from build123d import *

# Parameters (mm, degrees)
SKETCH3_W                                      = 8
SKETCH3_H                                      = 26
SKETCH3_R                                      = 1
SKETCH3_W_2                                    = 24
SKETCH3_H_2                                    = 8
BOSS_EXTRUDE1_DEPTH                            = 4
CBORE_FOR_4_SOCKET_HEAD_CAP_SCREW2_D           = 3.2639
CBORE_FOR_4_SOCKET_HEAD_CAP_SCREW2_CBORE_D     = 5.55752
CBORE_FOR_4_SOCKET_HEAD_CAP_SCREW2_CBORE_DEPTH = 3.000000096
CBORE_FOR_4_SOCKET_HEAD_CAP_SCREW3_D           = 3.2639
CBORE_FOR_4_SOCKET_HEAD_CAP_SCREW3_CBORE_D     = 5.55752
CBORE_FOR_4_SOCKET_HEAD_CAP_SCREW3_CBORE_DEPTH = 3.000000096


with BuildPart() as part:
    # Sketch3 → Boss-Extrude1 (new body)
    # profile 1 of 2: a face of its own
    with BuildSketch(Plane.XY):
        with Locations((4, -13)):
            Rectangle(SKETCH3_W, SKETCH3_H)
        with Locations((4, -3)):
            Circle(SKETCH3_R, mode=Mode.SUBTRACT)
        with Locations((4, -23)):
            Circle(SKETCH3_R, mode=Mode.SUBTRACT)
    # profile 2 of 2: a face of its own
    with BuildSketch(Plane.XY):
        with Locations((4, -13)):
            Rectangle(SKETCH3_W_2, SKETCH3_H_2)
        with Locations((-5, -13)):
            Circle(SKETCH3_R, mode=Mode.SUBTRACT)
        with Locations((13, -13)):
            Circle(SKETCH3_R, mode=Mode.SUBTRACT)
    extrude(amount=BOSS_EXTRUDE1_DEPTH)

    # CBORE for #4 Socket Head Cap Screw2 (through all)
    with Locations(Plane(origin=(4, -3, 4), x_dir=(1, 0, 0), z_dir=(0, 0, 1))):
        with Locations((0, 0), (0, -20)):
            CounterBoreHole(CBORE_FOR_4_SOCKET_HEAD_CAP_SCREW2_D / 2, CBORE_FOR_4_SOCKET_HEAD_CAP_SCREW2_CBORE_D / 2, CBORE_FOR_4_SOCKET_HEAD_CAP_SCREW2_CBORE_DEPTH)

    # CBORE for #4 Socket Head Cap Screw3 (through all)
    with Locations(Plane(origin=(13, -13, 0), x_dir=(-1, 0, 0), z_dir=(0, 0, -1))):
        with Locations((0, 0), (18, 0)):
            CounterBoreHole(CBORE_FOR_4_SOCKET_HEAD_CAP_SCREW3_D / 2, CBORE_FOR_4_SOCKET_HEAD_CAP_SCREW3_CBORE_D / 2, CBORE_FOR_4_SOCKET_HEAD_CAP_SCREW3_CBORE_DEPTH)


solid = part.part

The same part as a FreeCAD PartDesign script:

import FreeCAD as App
import Part
import Sketcher

V = App.Vector
Q = App.Units.Quantity


def add_polygon(sketch, points):
    """Adds a closed chain of lines whose ends are joined by coincident constraints."""
    first, n = sketch.GeometryCount, len(points)
    for a, b in zip(points, points[1:] + points[:1]):
        sketch.addGeometry(Part.LineSegment(App.Vector(*a, 0), App.Vector(*b, 0)), False)
    for i in range(n):
        sketch.addConstraint(Sketcher.Constraint("Coincident", first + i, 2, first + (i + 1) % n, 1))

doc = App.newDocument("Part")
params = doc.addObject("Spreadsheet::Sheet", "Params")
for row, (alias, value) in enumerate([
    ("sketch1_diameter", "2 mm"),
    ("sketch1_width", "8 mm"),
    ("sketch1_height", "9 mm"),
    ("pad1_length", "4 mm"),
    ("hole_diameter", "3.2639 mm"),
    ("hole_cbore_diameter", "5.55752 mm"),
    ("hole_cbore_depth", "3 mm"),
    ("hole2_diameter", "3.2639 mm"),
    ("hole2_cbore_diameter", "5.55752 mm"),
    ("hole2_cbore_depth", "3 mm"),
], start=1):
    params.set(f"A{row}", alias)
    params.set(f"B{row}", "=" + value)
    params.setAlias(f"B{row}", alias)

body = doc.addObject("PartDesign::Body", "Body")

# Sketch on XY plane
sketch1 = doc.addObject("Sketcher::SketchObject", "Sketch")
body.addObject(sketch1)
sketch1.AttachmentSupport = (doc.XY_Plane, [""])
sketch1.MapMode = "FlatFace"
add_polygon(sketch1, [(0, -17), (0, -26), (8, -26), (8, -17), (16, -17), (16, -9), (8, -9), (8, 0), (0, 0), (0, -9), (-8, -9), (-8, -17)])  # lines 0-11
sketch1.addGeometry(Part.Circle(V(4, -23, 0), V(0, 0, 1), 1), False)  # 12
sketch1.addGeometry(Part.Circle(V(-5, -13, 0), V(0, 0, 1), 1), False)  # 13
sketch1.addGeometry(Part.Circle(V(4, -3, 0), V(0, 0, 1), 1), False)  # 14
sketch1.addGeometry(Part.Circle(V(13, -13, 0), V(0, 0, 1), 1), False)  # 15
sketch1.addConstraint([
    Sketcher.Constraint("Vertical", 0),
    Sketcher.Constraint("Horizontal", 1),
    Sketcher.Constraint("Vertical", 2),
    Sketcher.Constraint("Horizontal", 3),
    Sketcher.Constraint("Vertical", 4),
    Sketcher.Constraint("Horizontal", 5),
    Sketcher.Constraint("Vertical", 6),
    Sketcher.Constraint("Horizontal", 7),
    Sketcher.Constraint("Vertical", 8),
    Sketcher.Constraint("Horizontal", 9),
    Sketcher.Constraint("Vertical", 10),
    Sketcher.Constraint("Horizontal", 11),
    Sketcher.Constraint("Coincident", 7, 2, -1, 1),
    Sketcher.Constraint("Equal", 12, 13),
    Sketcher.Constraint("Equal", 13, 14),
    Sketcher.Constraint("Equal", 14, 15),
    Sketcher.Constraint("Symmetric", 5, 2, 9, 2, -2),
    Sketcher.Constraint("Symmetric", 2, 2, 10, 2, -2),
    Sketcher.Constraint("PointOnObject", 0, 2, -2),
    Sketcher.Constraint("Horizontal", 13, 3, 15, 3),
    Sketcher.Constraint("Vertical", 12, 3, 14, 3),
    Sketcher.Constraint("Equal", 1, 3),
    Sketcher.Constraint("Equal", 11, 4),
    Sketcher.Constraint("Equal", 2, 6),
    Sketcher.Constraint("Diameter", 12, Q("2 mm")),
    Sketcher.Constraint("DistanceX", 1, 1, 1, 2, Q("8 mm")),
    Sketcher.Constraint("DistanceY", 0, 2, 0, 1, Q("9 mm")),
    Sketcher.Constraint("DistanceX", -1, 1, 12, 3, Q("4 mm")),
    Sketcher.Constraint("DistanceY", 12, 3, -1, 1, Q("23 mm")),
    Sketcher.Constraint("DistanceX", 13, 3, -1, 1, Q("5 mm")),
    Sketcher.Constraint("DistanceY", 13, 3, -1, 1, Q("13 mm")),
    Sketcher.Constraint("DistanceY", 14, 3, -1, 1, Q("3 mm")),
    Sketcher.Constraint("DistanceX", -1, 1, 15, 3, Q("13 mm")),
])
sketch1.setExpression("Constraints[36]", "Params.sketch1_diameter")
sketch1.setExpression("Constraints[37]", "Params.sketch1_width")
sketch1.setExpression("Constraints[38]", "Params.sketch1_height")
pad1 = doc.addObject("PartDesign::Pad", "Pad")
body.addObject(pad1)
pad1.Profile = sketch1
pad1.setExpression("Length", "Params.pad1_length")

# Sketch on XY plane
sketch2 = doc.addObject("Sketcher::SketchObject", "Sketch001")
body.addObject(sketch2)
sketch2.AttachmentSupport = (doc.XY_Plane, [""])
sketch2.MapMode = "FlatFace"
sketch2.AttachmentOffset = App.Placement(V(0, 0, 4), App.Rotation())
sketch2.addGeometry([
    Part.Circle(V(4, -3, 0), V(0, 0, 1), 1.6),
    Part.Circle(V(4, -23, 0), V(0, 0, 1), 1.6),
], False)
sketch2.addConstraint([
    Sketcher.Constraint("Equal", 0, 1),
    Sketcher.Constraint("Vertical", 0, 3, 1, 3),
    Sketcher.Constraint("DistanceX", -1, 1, 0, 3, Q("4 mm")),
    Sketcher.Constraint("DistanceY", 0, 3, -1, 1, Q("3 mm")),
    Sketcher.Constraint("DistanceY", 1, 3, -1, 1, Q("23 mm")),
    Sketcher.Constraint("Diameter", 0, Q("3.2639 mm")),
])
doc.recompute()
hole = doc.addObject("PartDesign::Hole", "Hole")
body.addObject(hole)
hole.Profile = sketch2
hole.ThreadType = "None"
hole.setExpression("Diameter", "Params.hole_diameter")
hole.DepthType = "ThroughAll"
hole.HoleCutType = "Counterbore"
hole.setExpression("HoleCutDiameter", "Params.hole_cbore_diameter")
hole.setExpression("HoleCutDepth", "Params.hole_cbore_depth")

# Sketch on XY plane
sketch3 = doc.addObject("Sketcher::SketchObject", "Sketch002")
body.addObject(sketch3)
sketch3.AttachmentSupport = (doc.XY_Plane, [""])
sketch3.MapMode = "FlatFace"
sketch3.addGeometry([
    Part.Circle(V(13, -13, 0), V(0, 0, 1), 1.6),
    Part.Circle(V(-5, -13, 0), V(0, 0, 1), 1.6),
], False)
sketch3.addConstraint([
    Sketcher.Constraint("Equal", 0, 1),
    Sketcher.Constraint("Horizontal", 0, 3, 1, 3),
    Sketcher.Constraint("DistanceX", -1, 1, 0, 3, Q("13 mm")),
    Sketcher.Constraint("DistanceY", 0, 3, -1, 1, Q("13 mm")),
    Sketcher.Constraint("DistanceX", 1, 3, -1, 1, Q("5 mm")),
    Sketcher.Constraint("Diameter", 0, Q("3.2639 mm")),
])
doc.recompute()
hole2 = doc.addObject("PartDesign::Hole", "Hole001")
body.addObject(hole2)
hole2.Profile = sketch3
hole2.ThreadType = "None"
hole2.setExpression("Diameter", "Params.hole2_diameter")
hole2.DepthType = "ThroughAll"
hole2.HoleCutType = "Counterbore"
hole2.setExpression("HoleCutDiameter", "Params.hole2_cbore_diameter")
hole2.setExpression("HoleCutDepth", "Params.hole2_cbore_depth")
hole2.Reversed = True

doc.recompute()
